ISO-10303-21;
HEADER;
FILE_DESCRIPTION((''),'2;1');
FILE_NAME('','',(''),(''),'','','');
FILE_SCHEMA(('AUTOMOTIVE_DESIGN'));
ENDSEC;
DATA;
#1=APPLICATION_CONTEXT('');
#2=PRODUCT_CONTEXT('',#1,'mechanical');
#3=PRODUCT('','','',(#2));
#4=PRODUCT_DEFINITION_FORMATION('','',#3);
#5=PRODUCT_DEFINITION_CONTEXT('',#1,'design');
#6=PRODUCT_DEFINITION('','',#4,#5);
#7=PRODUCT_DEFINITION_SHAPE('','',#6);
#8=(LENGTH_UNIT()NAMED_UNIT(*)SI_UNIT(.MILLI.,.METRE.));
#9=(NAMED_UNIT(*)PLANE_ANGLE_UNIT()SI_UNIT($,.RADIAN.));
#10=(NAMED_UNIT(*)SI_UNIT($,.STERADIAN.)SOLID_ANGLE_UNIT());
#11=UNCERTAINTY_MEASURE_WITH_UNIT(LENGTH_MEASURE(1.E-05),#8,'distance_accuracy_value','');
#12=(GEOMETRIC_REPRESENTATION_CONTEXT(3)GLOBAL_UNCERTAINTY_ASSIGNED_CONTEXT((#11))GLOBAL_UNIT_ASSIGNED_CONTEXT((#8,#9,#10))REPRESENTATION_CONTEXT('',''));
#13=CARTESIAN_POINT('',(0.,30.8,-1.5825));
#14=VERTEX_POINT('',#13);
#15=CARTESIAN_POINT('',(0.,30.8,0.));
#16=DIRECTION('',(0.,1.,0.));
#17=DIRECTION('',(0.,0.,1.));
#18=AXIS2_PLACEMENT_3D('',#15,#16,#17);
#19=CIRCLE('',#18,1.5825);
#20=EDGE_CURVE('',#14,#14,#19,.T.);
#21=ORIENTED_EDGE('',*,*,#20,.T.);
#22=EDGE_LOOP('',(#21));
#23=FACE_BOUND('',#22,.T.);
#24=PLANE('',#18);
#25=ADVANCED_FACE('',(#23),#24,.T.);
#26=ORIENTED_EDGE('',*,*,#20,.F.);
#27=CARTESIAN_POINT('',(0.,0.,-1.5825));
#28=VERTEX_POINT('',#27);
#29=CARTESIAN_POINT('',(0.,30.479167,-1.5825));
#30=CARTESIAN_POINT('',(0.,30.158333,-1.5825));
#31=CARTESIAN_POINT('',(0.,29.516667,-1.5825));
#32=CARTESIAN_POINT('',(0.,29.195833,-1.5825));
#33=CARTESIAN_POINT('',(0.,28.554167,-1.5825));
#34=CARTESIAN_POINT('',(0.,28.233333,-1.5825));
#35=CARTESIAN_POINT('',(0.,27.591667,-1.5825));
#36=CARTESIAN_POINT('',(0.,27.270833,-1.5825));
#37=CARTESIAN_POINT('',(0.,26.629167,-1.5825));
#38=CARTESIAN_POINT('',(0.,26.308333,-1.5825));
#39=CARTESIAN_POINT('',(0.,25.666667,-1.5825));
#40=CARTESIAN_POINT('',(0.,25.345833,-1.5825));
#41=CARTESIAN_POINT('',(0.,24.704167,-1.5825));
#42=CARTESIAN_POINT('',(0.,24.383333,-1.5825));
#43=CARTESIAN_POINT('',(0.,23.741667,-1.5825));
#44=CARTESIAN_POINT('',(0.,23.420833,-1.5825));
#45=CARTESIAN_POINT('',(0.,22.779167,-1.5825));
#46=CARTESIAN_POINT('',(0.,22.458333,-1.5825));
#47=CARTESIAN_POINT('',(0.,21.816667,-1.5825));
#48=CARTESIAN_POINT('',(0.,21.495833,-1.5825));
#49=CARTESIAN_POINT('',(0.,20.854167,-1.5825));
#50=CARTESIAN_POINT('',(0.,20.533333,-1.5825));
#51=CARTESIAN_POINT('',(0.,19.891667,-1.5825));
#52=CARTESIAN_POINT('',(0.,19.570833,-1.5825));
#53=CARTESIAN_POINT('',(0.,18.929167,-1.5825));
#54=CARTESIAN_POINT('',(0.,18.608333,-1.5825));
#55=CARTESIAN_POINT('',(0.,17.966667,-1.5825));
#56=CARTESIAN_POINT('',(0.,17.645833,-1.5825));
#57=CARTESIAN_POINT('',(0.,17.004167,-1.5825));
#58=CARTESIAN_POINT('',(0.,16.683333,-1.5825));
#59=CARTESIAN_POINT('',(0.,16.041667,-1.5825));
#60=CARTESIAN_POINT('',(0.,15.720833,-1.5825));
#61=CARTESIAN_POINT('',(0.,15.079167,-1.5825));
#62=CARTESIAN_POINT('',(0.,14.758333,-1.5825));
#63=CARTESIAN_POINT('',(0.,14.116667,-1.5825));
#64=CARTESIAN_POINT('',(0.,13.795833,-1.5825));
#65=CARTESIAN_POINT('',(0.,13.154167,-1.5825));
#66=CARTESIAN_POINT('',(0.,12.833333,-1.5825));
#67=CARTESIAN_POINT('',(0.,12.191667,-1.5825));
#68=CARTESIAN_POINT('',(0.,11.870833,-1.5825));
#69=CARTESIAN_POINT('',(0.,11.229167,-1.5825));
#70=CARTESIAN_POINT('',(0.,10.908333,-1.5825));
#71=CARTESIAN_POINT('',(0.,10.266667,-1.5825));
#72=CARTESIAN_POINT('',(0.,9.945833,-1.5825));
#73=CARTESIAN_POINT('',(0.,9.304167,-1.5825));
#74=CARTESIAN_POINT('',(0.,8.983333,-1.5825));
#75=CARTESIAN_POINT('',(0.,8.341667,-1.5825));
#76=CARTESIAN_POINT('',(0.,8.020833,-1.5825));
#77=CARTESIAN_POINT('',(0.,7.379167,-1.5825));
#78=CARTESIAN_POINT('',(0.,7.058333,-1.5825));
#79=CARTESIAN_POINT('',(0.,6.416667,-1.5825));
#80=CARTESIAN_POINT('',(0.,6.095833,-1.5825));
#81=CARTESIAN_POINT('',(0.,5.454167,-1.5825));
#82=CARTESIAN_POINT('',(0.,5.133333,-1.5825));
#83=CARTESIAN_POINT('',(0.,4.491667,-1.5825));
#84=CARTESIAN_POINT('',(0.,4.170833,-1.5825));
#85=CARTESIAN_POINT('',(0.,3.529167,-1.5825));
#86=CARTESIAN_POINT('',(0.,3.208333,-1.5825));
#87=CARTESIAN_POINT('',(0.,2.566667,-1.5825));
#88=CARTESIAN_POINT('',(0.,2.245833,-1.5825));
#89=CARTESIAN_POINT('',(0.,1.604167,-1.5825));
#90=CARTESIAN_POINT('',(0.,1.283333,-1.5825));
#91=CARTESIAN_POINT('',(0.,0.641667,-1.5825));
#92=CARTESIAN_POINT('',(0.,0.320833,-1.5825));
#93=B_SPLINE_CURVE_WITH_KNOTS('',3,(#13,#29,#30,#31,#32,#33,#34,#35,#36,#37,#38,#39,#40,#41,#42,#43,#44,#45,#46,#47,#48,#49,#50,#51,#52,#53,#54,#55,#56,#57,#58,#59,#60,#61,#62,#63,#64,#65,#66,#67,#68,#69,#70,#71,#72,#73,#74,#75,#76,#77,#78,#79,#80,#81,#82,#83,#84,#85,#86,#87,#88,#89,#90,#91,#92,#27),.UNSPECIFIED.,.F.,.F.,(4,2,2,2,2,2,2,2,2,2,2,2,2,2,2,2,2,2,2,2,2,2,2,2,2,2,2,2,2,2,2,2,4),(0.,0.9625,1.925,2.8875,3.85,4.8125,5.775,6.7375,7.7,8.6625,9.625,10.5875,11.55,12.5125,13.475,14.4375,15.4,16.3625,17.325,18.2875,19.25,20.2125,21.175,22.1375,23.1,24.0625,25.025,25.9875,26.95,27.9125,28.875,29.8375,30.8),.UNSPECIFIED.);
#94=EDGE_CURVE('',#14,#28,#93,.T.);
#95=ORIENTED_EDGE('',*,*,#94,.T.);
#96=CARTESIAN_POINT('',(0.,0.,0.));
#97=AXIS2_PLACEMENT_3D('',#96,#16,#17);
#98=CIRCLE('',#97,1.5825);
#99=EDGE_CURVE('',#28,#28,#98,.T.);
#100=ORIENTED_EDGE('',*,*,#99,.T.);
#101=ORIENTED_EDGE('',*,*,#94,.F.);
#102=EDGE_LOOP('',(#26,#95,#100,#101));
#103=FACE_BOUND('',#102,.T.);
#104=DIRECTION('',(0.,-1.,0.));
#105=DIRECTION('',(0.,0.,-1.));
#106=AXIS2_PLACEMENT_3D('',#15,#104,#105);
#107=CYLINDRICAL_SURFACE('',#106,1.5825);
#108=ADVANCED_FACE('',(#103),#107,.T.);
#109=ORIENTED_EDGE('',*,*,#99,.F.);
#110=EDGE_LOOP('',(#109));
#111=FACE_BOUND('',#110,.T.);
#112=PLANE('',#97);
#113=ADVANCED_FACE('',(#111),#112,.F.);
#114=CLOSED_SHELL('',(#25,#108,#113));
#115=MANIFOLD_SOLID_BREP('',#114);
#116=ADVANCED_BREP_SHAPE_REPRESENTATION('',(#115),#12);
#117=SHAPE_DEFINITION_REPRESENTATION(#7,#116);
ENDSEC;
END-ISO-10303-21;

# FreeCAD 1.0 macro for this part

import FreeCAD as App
import Part
import Sketcher
from FreeCAD import Vector
Q = App.Units.Quantity

doc = App.newDocument("Part")
params = doc.addObject("Spreadsheet::Sheet", "Params")
for row, (alias, value) in enumerate([
    ("pad1_length", "30.8 mm"),
], start=1):
    params.set(f"A{row}", alias)
    params.set(f"B{row}", "=" + value)
    params.setAlias(f"B{row}", alias)

body = doc.addObject("PartDesign::Body", "Body")

# Sketch on XZ plane
sketch1 = body.newObject("Sketcher::SketchObject", "Sketch")
sketch1.AttachmentSupport = (doc.getObject("XZ_Plane"), [""])
sketch1.MapMode = "FlatFace"
sketch1.addGeometry(Part.Circle(Vector(0, 0, 0), Vector(0, 0, 1), 1.6), False)
sketch1.addConstraint([
    Sketcher.Constraint("Coincident", 0, 3, -1, 1),
    Sketcher.Constraint("Diameter", 0, Q("3.165 mm")),
])
pad1 = body.newObject("PartDesign::Pad", "Pad")
pad1.Profile = sketch1
pad1.setExpression("Length", "Params.pad1_length")
pad1.Reversed = True

doc.recompute()
